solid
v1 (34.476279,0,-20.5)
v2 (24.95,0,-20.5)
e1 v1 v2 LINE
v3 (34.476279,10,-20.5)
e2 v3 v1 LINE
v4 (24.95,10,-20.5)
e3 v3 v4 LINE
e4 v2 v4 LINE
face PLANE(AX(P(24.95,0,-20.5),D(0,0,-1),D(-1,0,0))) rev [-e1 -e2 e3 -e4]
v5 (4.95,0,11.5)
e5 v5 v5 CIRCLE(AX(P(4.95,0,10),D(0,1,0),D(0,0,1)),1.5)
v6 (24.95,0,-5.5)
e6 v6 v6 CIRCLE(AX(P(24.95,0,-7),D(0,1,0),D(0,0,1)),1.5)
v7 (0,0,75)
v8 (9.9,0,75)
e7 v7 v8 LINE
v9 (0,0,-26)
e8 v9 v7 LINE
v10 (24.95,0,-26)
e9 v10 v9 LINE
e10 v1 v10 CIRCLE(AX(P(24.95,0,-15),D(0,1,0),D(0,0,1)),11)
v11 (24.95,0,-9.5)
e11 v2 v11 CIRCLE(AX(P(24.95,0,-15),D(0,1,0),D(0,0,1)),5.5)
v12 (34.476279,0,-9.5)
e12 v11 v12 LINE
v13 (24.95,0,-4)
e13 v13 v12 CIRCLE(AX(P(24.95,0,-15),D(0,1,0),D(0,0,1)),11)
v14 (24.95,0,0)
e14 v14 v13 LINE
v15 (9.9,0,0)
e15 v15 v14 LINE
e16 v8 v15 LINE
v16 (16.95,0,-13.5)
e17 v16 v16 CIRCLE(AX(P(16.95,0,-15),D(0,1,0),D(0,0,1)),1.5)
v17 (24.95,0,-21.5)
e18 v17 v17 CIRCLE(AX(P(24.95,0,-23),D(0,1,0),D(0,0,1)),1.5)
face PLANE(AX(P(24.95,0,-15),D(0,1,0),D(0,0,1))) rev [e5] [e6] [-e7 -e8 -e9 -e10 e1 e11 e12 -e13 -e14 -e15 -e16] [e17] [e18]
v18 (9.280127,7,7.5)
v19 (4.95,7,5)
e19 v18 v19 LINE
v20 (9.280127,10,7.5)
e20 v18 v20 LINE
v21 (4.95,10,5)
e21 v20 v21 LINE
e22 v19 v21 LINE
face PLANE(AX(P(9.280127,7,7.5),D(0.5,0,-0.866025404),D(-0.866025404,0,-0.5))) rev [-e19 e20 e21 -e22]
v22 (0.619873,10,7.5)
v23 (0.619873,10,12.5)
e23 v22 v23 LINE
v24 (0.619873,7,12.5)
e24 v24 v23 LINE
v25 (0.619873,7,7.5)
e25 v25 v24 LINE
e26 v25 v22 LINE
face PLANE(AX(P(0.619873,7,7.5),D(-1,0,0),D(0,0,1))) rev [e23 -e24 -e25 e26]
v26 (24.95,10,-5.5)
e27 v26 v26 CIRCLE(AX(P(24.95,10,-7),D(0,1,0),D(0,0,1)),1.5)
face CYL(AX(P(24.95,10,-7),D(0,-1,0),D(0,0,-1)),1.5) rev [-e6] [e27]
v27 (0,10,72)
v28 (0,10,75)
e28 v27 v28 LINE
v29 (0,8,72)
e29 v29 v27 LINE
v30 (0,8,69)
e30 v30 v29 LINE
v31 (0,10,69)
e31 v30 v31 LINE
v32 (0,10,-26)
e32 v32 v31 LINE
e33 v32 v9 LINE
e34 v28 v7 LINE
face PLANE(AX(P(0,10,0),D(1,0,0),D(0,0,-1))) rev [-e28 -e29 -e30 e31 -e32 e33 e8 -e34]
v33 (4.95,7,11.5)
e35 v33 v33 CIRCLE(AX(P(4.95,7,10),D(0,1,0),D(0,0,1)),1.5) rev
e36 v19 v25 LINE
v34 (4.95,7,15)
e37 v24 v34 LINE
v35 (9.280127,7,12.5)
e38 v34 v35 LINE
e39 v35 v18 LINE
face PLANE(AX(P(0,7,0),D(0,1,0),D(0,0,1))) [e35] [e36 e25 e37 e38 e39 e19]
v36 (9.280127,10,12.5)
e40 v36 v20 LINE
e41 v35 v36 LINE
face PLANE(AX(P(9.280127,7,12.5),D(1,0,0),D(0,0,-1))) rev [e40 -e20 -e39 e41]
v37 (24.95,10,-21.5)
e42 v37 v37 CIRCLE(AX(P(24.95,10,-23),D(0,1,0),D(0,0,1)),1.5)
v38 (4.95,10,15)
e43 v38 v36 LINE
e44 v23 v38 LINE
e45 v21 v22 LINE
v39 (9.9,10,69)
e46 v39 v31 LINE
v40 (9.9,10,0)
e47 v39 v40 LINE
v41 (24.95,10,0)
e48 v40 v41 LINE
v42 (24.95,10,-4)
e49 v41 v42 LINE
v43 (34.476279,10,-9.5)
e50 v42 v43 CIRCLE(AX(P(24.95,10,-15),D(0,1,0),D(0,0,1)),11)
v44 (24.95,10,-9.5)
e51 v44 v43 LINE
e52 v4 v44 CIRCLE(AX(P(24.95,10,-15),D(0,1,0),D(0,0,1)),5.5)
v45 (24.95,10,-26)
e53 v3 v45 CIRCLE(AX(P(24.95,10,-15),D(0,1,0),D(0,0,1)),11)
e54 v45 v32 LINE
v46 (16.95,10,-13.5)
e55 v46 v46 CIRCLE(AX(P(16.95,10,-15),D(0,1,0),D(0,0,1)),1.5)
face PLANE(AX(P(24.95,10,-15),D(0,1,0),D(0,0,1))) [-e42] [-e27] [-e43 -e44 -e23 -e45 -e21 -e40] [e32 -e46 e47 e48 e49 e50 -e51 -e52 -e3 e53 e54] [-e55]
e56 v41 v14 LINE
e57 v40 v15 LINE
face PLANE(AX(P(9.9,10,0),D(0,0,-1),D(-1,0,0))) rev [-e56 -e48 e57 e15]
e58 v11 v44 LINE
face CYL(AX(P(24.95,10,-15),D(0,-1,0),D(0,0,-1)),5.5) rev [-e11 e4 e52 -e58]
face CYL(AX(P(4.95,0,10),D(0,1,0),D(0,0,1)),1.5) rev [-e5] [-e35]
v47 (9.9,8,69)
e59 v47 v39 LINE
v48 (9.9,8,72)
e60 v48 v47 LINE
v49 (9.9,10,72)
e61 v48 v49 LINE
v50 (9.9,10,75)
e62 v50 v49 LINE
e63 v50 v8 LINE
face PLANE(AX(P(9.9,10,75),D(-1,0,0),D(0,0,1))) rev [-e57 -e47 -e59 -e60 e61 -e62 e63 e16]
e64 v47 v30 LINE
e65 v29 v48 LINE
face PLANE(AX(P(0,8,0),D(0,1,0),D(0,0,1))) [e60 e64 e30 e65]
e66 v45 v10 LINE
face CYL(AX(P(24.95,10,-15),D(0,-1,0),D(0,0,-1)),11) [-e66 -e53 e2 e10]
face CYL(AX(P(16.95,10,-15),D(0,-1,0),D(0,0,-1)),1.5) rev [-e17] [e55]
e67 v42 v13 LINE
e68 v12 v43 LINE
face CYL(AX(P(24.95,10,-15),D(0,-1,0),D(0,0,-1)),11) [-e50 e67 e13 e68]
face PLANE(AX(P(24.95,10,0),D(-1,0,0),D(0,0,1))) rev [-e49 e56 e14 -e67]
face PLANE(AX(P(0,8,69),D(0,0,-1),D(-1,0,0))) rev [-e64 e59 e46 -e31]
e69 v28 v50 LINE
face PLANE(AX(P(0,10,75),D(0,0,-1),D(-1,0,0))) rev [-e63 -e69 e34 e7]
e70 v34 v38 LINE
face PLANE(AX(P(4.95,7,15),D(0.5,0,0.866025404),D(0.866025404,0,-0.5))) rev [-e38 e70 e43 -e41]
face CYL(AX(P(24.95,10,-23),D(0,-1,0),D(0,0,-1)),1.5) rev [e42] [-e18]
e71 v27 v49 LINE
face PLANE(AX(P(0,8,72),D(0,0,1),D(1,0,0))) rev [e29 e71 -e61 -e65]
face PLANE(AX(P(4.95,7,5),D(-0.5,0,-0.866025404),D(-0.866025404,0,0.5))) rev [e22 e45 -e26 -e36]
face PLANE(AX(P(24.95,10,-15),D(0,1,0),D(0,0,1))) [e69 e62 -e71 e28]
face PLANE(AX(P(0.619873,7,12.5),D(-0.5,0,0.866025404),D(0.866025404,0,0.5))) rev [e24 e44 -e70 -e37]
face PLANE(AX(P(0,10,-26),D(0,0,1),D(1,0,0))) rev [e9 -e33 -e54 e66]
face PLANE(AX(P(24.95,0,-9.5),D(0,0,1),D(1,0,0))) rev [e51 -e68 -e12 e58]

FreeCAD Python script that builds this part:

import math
import FreeCAD as App
import Part
import Sketcher
Q = App.Units.Quantity


def add_polygon(sketch, points):
    """Adds a closed chain of lines whose ends are joined by coincident constraints."""
    first, n = sketch.GeometryCount, len(points)
    for a, b in zip(points, points[1:] + points[:1]):
        sketch.addGeometry(Part.LineSegment(App.Vector(*a, 0), App.Vector(*b, 0)), False)
    for i in range(n):
        sketch.addConstraint(Sketcher.Constraint("Coincident", first + i, 2, first + (i + 1) % n, 1))

doc = App.newDocument("Part")
params = doc.addObject("Spreadsheet::Sheet", "Params")
for row, (alias, value) in enumerate([
    ("sketch1_diameter", "3 mm"),
    ("sketch1_diameter2", "11 mm"),
    ("sketch1_radius", "11 mm"),
    ("sketch1_height", "75 mm"),
    ("sketch1_height2", "4 mm"),
    ("pad1_length", "10 mm"),
    ("sketch2_height", "3 mm"),
    ("sketch2_width", "9.9 mm"),
    ("pocket1_length", "2 mm"),
    ("sketch3_height", "11 mm"),
    ("pocket2_length", "10 mm"),
    ("sketch4_diameter", "3 mm"),
    ("pocket3_length", "10 mm"),
    ("sketch5_height", "5 mm"),
    ("sketch5_length", "5 mm"),
    ("pocket4_length", "3 mm"),
], start=1):
    params.set(f"A{row}", alias)
    params.set(f"B{row}", "=" + value)
    params.setAlias(f"B{row}", alias)

body = doc.addObject("PartDesign::Body", "Body")

sketch1 = body.newObject("Sketcher::SketchObject", "Sketch")
sketch1.AttachmentSupport = (doc.getObject("XZ_Plane"), [""])
sketch1.MapMode = "FlatFace"
sketch1.addGeometry([
    Part.LineSegment(App.Vector(0, 75, 0), App.Vector(9.9, 75, 0)),
    Part.LineSegment(App.Vector(9.9, 75, 0), App.Vector(9.9, 0, 0)),
    Part.LineSegment(App.Vector(9.9, 0, 0), App.Vector(24.9, 0, 0)),
    Part.LineSegment(App.Vector(24.9, 0, 0), App.Vector(24.9, -4, 0)),
    Part.ArcOfCircle(Part.Circle(App.Vector(24.9, -15, 0), App.Vector(0, 0, 1), 11), math.radians(-90), math.radians(90)),
    Part.LineSegment(App.Vector(24.9, -26, 0), App.Vector(0, -26, 0)),
    Part.LineSegment(App.Vector(0, -26, 0), App.Vector(0, 75, 0)),
    Part.Circle(App.Vector(24.9, -7, 0), App.Vector(0, 0, 1), 1.5),
    Part.Circle(App.Vector(16.9, -15, 0), App.Vector(0, 0, 1), 1.5),
    Part.Circle(App.Vector(24.9, -15, 0), App.Vector(0, 0, 1), 5.5),
    Part.Circle(App.Vector(24.9, -23, 0), App.Vector(0, 0, 1), 1.5),
], False)
sketch1.addConstraint([
    Sketcher.Constraint("Coincident", 0, 2, 1, 1),
    Sketcher.Constraint("Coincident", 1, 2, 2, 1),
    Sketcher.Constraint("Coincident", 2, 2, 3, 1),
    Sketcher.Constraint("Coincident", 3, 2, 4, 2),
    Sketcher.Constraint("Tangent", 4, 1, 5, 1),
    Sketcher.Constraint("Coincident", 5, 2, 6, 1),
    Sketcher.Constraint("Coincident", 6, 2, 0, 1),
    Sketcher.Constraint("Horizontal", 0),
    Sketcher.Constraint("Vertical", 1),
    Sketcher.Constraint("Horizontal", 2),
    Sketcher.Constraint("Vertical", 3),
    Sketcher.Constraint("Horizontal", 5),
    Sketcher.Constraint("Vertical", 6),
    Sketcher.Constraint("Coincident", 9, 3, 4, 3),
    Sketcher.Constraint("Equal", 7, 8),
    Sketcher.Constraint("Equal", 8, 10),
    Sketcher.Constraint("PointOnObject", 1, 2, -1),
    Sketcher.Constraint("PointOnObject", 5, 2, -2),
    Sketcher.Constraint("Horizontal", 4, 3, 8, 3),
    Sketcher.Constraint("Vertical", 4, 3, 7, 3),
    Sketcher.Constraint("Vertical", 9, 3, 10, 3),
    Sketcher.Constraint("Vertical", 10, 3, 2, 2),
    Sketcher.Constraint("Diameter", 7, 3.0),
    Sketcher.Constraint("Diameter", 9, 11.0),
    Sketcher.Constraint("Radius", 4, 11.0),
    Sketcher.Constraint("DistanceY", 1, 2, 1, 1, 75.0),
    Sketcher.Constraint("DistanceY", 3, 2, 3, 1, 4.0),
    Sketcher.Constraint("DistanceX", 0, 1, 0, 2, 9.9),
    Sketcher.Constraint("DistanceY", 7, 3, -1, 1, 7.0),
    Sketcher.Constraint("DistanceY", 10, 3, -1, 1, 23.0),
    Sketcher.Constraint("DistanceX", 8, 3, 4, 3, 8.0),
    Sketcher.Constraint("DistanceX", 2, 1, 2, 2, 15.05),
])
sketch1.setExpression("Constraints[22]", "Params.sketch1_diameter")
sketch1.setExpression("Constraints[23]", "Params.sketch1_diameter2")
sketch1.setExpression("Constraints[24]", "Params.sketch1_radius")
sketch1.setExpression("Constraints[25]", "Params.sketch1_height")
sketch1.setExpression("Constraints[26]", "Params.sketch1_height2")
pad1 = body.newObject("PartDesign::Pad", "Pad")
pad1.Profile = sketch1
pad1.setExpression("Length", "Params.pad1_length")
pad1.Reversed = True

sketch2 = body.newObject("Sketcher::SketchObject", "Sketch001")
sketch2.AttachmentSupport = (doc.getObject("XZ_Plane"), [""])
sketch2.MapMode = "FlatFace"
sketch2.AttachmentOffset = App.Placement(App.Vector(0, 0, -10), App.Rotation())
add_polygon(sketch2, [(0, 69), (0, 72), (9.9, 72), (9.9, 69)])
sketch2.addConstraint([
    Sketcher.Constraint("Vertical", 0),
    Sketcher.Constraint("Horizontal", 1),
    Sketcher.Constraint("Vertical", 2),
    Sketcher.Constraint("Horizontal", 3),
    Sketcher.Constraint("PointOnObject", 0, 2, -2),
    Sketcher.Constraint("DistanceY", 0, 1, 0, 2, 3.0),
    Sketcher.Constraint("DistanceX", 1, 1, 1, 2, 9.9),
    Sketcher.Constraint("DistanceY", -1, 1, 0, 2, 72.0),
])
sketch2.setExpression("Constraints[9]", "Params.sketch2_height")
sketch2.setExpression("Constraints[10]", "Params.sketch2_width")
pocket1 = body.newObject("PartDesign::Pocket", "Pocket")
pocket1.Profile = sketch2
pocket1.setExpression("Length", "Params.pocket1_length")
pocket1.Reversed = True

sketch3 = body.newObject("Sketcher::SketchObject", "Sketch002")
sketch3.AttachmentSupport = (doc.getObject("XZ_Plane"), [""])
sketch3.MapMode = "FlatFace"
sketch3.AttachmentOffset = App.Placement(App.Vector(0, 0, -10), App.Rotation())
add_polygon(sketch3, [(25, -20), (25, -10), (45, -10), (45, -20)])
sketch3.addConstraint([
    Sketcher.Constraint("Vertical", 0),
    Sketcher.Constraint("Horizontal", 1),
    Sketcher.Constraint("Vertical", 2),
    Sketcher.Constraint("Horizontal", 3),
    Sketcher.Constraint("DistanceY", 0, 1, 0, 2, 11.0),
    Sketcher.Constraint("DistanceY", 0, 2, -1, 1, 9.5),
    Sketcher.Constraint("DistanceX", -1, 1, 0, 2, 24.95),
    Sketcher.Constraint("DistanceX", 1, 1, 1, 2, 20.106266),
])
sketch3.setExpression("Constraints[8]", "Params.sketch3_height")
pocket2 = body.newObject("PartDesign::Pocket", "Pocket001")
pocket2.Profile = sketch3
pocket2.setExpression("Length", "Params.pocket2_length")
pocket2.Reversed = True

sketch4 = body.newObject("Sketcher::SketchObject", "Sketch003")
sketch4.AttachmentSupport = (doc.getObject("XZ_Plane"), [""])
sketch4.MapMode = "FlatFace"
sketch4.AttachmentOffset = App.Placement(App.Vector(0, 0, -10), App.Rotation())
sketch4.addGeometry(Part.Circle(App.Vector(5, 10, 0), App.Vector(0, 0, 1), 1.5), False)
sketch4.addConstraint([
    Sketcher.Constraint("Diameter", 0, 3.0),
    Sketcher.Constraint("DistanceY", -1, 1, 0, 3, 10.0),
    Sketcher.Constraint("DistanceX", -1, 1, 0, 3, 4.95),
])
sketch4.setExpression("Constraints[0]", "Params.sketch4_diameter")
pocket3 = body.newObject("PartDesign::Pocket", "Pocket002")
pocket3.Profile = sketch4
pocket3.setExpression("Length", "Params.pocket3_length")
pocket3.Reversed = True

sketch5 = body.newObject("Sketcher::SketchObject", "Sketch004")
sketch5.AttachmentSupport = (doc.getObject("XZ_Plane"), [""])
sketch5.MapMode = "FlatFace"
sketch5.AttachmentOffset = App.Placement(App.Vector(0, 0, -10), App.Rotation())
add_polygon(sketch5, [(5, 5), (1, 8), (1, 12), (5, 15), (9, 12), (9, 8)])
sketch5.addConstraint([
    Sketcher.Constraint("Vertical", 1),
    Sketcher.Constraint("Vertical", 4),
    Sketcher.Constraint("Parallel", 0, 3),
    Sketcher.Constraint("Parallel", 2, 5),
    Sketcher.Constraint("Horizontal", 1, 2, 3, 2),
    Sketcher.Constraint("Horizontal", 0, 2, 4, 2),
    Sketcher.Constraint("Vertical", 2, 2, 5, 2),
    Sketcher.Constraint("DistanceY", 1, 1, 1, 2, 5.0),
    Sketcher.Constraint("Angle", 0, Q("150 deg")),
    Sketcher.Constraint("Distance", 0, 5.0),
    Sketcher.Constraint("DistanceY", -1, 1, 2, 2, 15.0),
    Sketcher.Constraint("DistanceX", -1, 1, 2, 2, 4.95),
])
sketch5.setExpression("Constraints[13]", "Params.sketch5_height")
sketch5.setExpression("Constraints[15]", "Params.sketch5_length")
pocket4 = body.newObject("PartDesign::Pocket", "Pocket003")
pocket4.Profile = sketch5
pocket4.setExpression("Length", "Params.pocket4_length")
pocket4.Reversed = True

doc.recompute()
